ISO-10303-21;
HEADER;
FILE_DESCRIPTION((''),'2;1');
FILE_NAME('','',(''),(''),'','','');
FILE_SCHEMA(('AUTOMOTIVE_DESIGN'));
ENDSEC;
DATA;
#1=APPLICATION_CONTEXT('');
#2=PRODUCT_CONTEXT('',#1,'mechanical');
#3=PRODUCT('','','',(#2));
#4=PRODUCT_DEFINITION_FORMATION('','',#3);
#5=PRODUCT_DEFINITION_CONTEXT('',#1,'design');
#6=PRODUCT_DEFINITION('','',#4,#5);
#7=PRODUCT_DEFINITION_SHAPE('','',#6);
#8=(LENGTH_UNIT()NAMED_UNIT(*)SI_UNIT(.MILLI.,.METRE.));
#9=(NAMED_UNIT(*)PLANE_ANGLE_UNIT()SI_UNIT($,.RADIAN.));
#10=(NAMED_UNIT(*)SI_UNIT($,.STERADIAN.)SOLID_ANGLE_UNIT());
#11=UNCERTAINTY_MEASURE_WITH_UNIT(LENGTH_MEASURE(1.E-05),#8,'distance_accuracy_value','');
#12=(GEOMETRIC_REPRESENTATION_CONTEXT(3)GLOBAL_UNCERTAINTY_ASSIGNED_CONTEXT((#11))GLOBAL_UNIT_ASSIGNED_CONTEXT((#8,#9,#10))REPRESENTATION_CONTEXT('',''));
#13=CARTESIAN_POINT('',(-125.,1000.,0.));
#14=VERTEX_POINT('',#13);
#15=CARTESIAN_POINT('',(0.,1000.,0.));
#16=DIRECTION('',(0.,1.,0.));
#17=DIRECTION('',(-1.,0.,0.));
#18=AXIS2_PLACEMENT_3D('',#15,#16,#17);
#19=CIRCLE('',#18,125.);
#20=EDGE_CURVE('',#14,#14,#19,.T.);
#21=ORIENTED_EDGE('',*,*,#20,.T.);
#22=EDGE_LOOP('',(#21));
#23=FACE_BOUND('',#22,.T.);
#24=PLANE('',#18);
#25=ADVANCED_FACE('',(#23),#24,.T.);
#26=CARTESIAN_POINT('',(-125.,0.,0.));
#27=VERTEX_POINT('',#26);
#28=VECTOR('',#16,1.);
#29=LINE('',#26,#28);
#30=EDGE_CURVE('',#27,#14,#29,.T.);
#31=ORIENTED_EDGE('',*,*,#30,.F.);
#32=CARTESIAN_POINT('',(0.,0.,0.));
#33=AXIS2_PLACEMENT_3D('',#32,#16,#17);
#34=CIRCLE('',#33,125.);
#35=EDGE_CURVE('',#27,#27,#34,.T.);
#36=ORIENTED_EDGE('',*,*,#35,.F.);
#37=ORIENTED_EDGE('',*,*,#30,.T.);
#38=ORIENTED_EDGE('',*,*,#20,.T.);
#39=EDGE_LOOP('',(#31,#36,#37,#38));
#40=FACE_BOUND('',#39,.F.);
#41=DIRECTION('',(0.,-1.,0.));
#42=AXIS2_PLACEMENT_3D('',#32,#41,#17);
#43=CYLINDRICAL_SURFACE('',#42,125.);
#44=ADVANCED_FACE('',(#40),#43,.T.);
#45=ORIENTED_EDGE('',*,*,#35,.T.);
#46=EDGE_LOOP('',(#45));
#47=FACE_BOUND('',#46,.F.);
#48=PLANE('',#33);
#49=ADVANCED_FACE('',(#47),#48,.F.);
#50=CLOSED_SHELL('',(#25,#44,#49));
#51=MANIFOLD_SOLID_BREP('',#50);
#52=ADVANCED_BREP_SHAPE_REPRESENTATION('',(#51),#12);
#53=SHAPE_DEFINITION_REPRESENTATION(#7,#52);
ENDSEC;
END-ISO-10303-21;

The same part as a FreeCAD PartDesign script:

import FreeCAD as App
import Part
import Sketcher
Q = App.Units.Quantity

doc = App.newDocument("Part")
body = doc.addObject("PartDesign::Body", "Body")

# Sketch on XZ plane
sketch1 = body.newObject("Sketcher::SketchObject", "Sketch")
sketch1.AttachmentSupport = (doc.getObject("XZ_Plane"), [""])
sketch1.MapMode = "FlatFace"
sketch1.addGeometry(Part.Circle(App.Vector(0, 0, 0), App.Vector(0, 0, 1), 125), False)
sketch1.addConstraint(Sketcher.Constraint("Coincident", 0, 3, -1, 1))
sketch1.addConstraint(Sketcher.Constraint("Diameter", 0, Q("250 mm")))
pad1 = body.newObject("PartDesign::Pad", "Pad")
pad1.Profile = sketch1
pad1.Length = 1000
pad1.Reversed = True

doc.recompute()
